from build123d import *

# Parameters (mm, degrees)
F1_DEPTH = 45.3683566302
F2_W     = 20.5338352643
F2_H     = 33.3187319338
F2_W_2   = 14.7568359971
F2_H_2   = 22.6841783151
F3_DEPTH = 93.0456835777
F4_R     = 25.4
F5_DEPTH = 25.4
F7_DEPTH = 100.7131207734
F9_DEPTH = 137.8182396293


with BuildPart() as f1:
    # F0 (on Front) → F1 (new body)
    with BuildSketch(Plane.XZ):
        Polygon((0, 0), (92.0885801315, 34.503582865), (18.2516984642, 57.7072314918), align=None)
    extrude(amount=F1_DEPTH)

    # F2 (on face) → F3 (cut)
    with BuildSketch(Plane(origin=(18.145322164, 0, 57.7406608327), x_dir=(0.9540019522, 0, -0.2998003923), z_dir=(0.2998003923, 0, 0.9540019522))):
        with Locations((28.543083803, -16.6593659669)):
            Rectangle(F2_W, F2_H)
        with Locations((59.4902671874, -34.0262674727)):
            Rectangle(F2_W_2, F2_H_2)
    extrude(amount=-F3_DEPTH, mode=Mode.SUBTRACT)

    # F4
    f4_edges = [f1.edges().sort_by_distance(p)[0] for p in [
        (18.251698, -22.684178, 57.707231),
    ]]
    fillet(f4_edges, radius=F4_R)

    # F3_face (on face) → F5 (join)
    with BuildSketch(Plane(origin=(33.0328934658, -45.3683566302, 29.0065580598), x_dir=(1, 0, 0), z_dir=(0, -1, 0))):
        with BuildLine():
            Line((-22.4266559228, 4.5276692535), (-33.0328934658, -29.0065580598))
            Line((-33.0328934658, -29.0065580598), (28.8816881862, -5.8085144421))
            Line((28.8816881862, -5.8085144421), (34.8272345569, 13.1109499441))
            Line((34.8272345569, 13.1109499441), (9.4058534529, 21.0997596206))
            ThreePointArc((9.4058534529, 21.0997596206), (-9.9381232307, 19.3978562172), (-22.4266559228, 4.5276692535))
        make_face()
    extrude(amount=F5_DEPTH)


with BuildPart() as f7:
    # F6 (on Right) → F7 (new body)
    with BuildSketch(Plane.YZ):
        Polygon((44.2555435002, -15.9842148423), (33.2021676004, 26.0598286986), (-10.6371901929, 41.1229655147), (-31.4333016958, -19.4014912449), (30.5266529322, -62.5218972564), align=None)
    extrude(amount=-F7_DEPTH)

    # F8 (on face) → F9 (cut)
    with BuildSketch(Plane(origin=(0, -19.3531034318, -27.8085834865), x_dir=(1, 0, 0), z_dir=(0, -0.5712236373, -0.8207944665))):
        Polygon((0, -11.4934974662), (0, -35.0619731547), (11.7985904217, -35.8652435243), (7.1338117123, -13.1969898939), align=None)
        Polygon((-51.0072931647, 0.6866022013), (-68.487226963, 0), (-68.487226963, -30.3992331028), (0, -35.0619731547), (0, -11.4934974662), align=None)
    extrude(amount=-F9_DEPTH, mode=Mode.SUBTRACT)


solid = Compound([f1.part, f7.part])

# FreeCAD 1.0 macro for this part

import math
import FreeCAD as App
import Part
import Sketcher
Q = App.Units.Quantity


def edges_at(feature, points):
    """Names of the edges that pass closest to the given points."""
    edges = feature.Shape.Edges
    near = lambda p: min(range(len(edges)), key=lambda i: edges[i].distToShape(Part.Vertex(*p))[0])
    return sorted({f"Edge{near(p) + 1}" for p in points})

doc = App.newDocument("Part")
body = doc.addObject("PartDesign::Body", "Body")

sketch1 = body.newObject("Sketcher::SketchObject", "Sketch")
sketch1.AttachmentSupport = (doc.getObject("XZ_Plane"), [""])
sketch1.MapMode = "FlatFace"
sketch1.addGeometry(Part.LineSegment(App.Vector(0, 0, 0), App.Vector(92.08858, 34.503583, 0)), False)
sketch1.addGeometry(Part.LineSegment(App.Vector(92.08858, 34.503583, 0), App.Vector(18.251698, 57.707231, 0)), False)
sketch1.addGeometry(Part.LineSegment(App.Vector(18.251698, 57.707231, 0), App.Vector(0, 0, 0)), False)
sketch1.addConstraint(Sketcher.Constraint("Coincident", 0, 2, 1, 1))
sketch1.addConstraint(Sketcher.Constraint("Coincident", 1, 2, 2, 1))
sketch1.addConstraint(Sketcher.Constraint("Coincident", 2, 2, 0, 1))
sketch1.addConstraint(Sketcher.Constraint("Coincident", 2, 2, -1, 1))
sketch1.addConstraint(Sketcher.Constraint("DistanceX", -1, 1, 1, 2, 18.251698))
sketch1.addConstraint(Sketcher.Constraint("Distance", 2, 60.524781))
sketch1.addConstraint(Sketcher.Constraint("DistanceX", -1, 1, 0, 2, 92.08858))
sketch1.addConstraint(Sketcher.Constraint("DistanceY", 0, 2, 1, 2, 23.203649))
pad1 = body.newObject("PartDesign::Pad", "Pad")
pad1.Profile = sketch1
pad1.Length = 45.368357

sketch2 = body.newObject("Sketcher::SketchObject", "Sketch001")
sketch2.Placement = App.Placement(App.Vector(18.145322, 0, 57.740661), App.Rotation(App.Vector(0.954001952, 0, -0.299800392), App.Vector(0, 0.999999999, 0), App.Vector(0.299800392, 0, 0.954001952), "ZXY"))
sketch2.addGeometry(Part.LineSegment(App.Vector(18.276166, 0, 0), App.Vector(18.276166, -33.318732, 0)), False)
sketch2.addGeometry(Part.LineSegment(App.Vector(18.276166, -33.318732, 0), App.Vector(38.810001, -33.318732, 0)), False)
sketch2.addGeometry(Part.LineSegment(App.Vector(38.810001, -33.318732, 0), App.Vector(38.810001, 0, 0)), False)
sketch2.addGeometry(Part.LineSegment(App.Vector(38.810001, 0, 0), App.Vector(18.276166, 0, 0)), False)
sketch2.addGeometry(Part.LineSegment(App.Vector(52.111849, -22.684178, 0), App.Vector(52.111849, -45.368357, 0)), False)
sketch2.addGeometry(Part.LineSegment(App.Vector(52.111849, -45.368357, 0), App.Vector(66.868685, -45.368357, 0)), False)
sketch2.addGeometry(Part.LineSegment(App.Vector(66.868685, -45.368357, 0), App.Vector(66.868685, -22.684178, 0)), False)
sketch2.addGeometry(Part.LineSegment(App.Vector(66.868685, -22.684178, 0), App.Vector(52.111849, -22.684178, 0)), False)
sketch2.addConstraint(Sketcher.Constraint("Coincident", 0, 2, 1, 1))
sketch2.addConstraint(Sketcher.Constraint("Coincident", 1, 2, 2, 1))
sketch2.addConstraint(Sketcher.Constraint("Coincident", 2, 2, 3, 1))
sketch2.addConstraint(Sketcher.Constraint("Coincident", 3, 2, 0, 1))
sketch2.addConstraint(Sketcher.Constraint("Coincident", 4, 2, 5, 1))
sketch2.addConstraint(Sketcher.Constraint("Coincident", 5, 2, 6, 1))
sketch2.addConstraint(Sketcher.Constraint("Coincident", 6, 2, 7, 1))
sketch2.addConstraint(Sketcher.Constraint("Coincident", 7, 2, 4, 1))
sketch2.addConstraint(Sketcher.Constraint("Vertical", 0))
sketch2.addConstraint(Sketcher.Constraint("Horizontal", 1))
sketch2.addConstraint(Sketcher.Constraint("Vertical", 2))
sketch2.addConstraint(Sketcher.Constraint("Horizontal", 3))
sketch2.addConstraint(Sketcher.Constraint("Vertical", 4))
sketch2.addConstraint(Sketcher.Constraint("Horizontal", 5))
sketch2.addConstraint(Sketcher.Constraint("Vertical", 6))
sketch2.addConstraint(Sketcher.Constraint("Horizontal", 7))
sketch2.addConstraint(Sketcher.Constraint("PointOnObject", 2, 2, -1))
sketch2.addConstraint(Sketcher.Constraint("DistanceY", 0, 2, 0, 1, 33.318732))
sketch2.addConstraint(Sketcher.Constraint("DistanceY", 4, 2, 4, 1, 22.684178))
sketch2.addConstraint(Sketcher.Constraint("DistanceX", -1, 1, 1, 2, 38.810001))
sketch2.addConstraint(Sketcher.Constraint("DistanceX", 1, 1, 1, 2, 20.533835))
sketch2.addConstraint(Sketcher.Constraint("DistanceX", 5, 1, 5, 2, 14.756836))
sketch2.addConstraint(Sketcher.Constraint("DistanceX", -1, 1, 4, 2, 52.111849))
sketch2.addConstraint(Sketcher.Constraint("DistanceY", 6, 2, -1, 1, 22.684178))
pocket1 = body.newObject("PartDesign::Pocket", "Pocket")
pocket1.Profile = sketch2
pocket1.Length = 93.045684
doc.recompute()

fillet = body.newObject("PartDesign::Fillet", "Fillet")
fillet.Base = (pocket1, edges_at(pocket1, [(18.252, -22.684, 57.707)]))
fillet.Radius = Q("1 in")

sketch3 = body.newObject("Sketcher::SketchObject", "Sketch002")
sketch3.AttachmentSupport = (doc.getObject("XZ_Plane"), [""])
sketch3.MapMode = "FlatFace"
sketch3.AttachmentOffset = App.Placement(App.Vector(0, 0, 45.368357), App.Rotation())
sketch3.addGeometry(Part.LineSegment(App.Vector(10.606238, 33.534227, 0), App.Vector(0, 0, 0)), False)
sketch3.addGeometry(Part.LineSegment(App.Vector(0, 0, 0), App.Vector(61.914582, 23.198044, 0)), False)
sketch3.addGeometry(Part.LineSegment(App.Vector(61.914582, 23.198044, 0), App.Vector(67.860128, 42.117508, 0)), False)
sketch3.addGeometry(Part.LineSegment(App.Vector(67.860128, 42.117508, 0), App.Vector(42.438747, 50.106318, 0)), False)
sketch3.addGeometry(Part.ArcOfCircle(Part.Circle(App.Vector(34.823817, 25.874668, 0), App.Vector(0, 0, 1), 25.4), math.radians(72.554385), math.radians(162.448829)), False)
sketch3.addConstraint(Sketcher.Constraint("Coincident", 0, 2, 1, 1))
sketch3.addConstraint(Sketcher.Constraint("Coincident", 1, 2, 2, 1))
sketch3.addConstraint(Sketcher.Constraint("Coincident", 2, 2, 3, 1))
sketch3.addConstraint(Sketcher.Constraint("Tangent", 3, 2, 4, 1))
sketch3.addConstraint(Sketcher.Constraint("Tangent", 4, 2, 0, 1))
sketch3.addConstraint(Sketcher.Constraint("Coincident", 0, 2, -1, 1))
sketch3.addConstraint(Sketcher.Constraint("Perpendicular", 2, 3))
sketch3.addConstraint(Sketcher.Constraint("Radius", 4, Q("1 in")))
sketch3.addConstraint(Sketcher.Constraint("Distance", 1, 66.117809))
sketch3.addConstraint(Sketcher.Constraint("DistanceY", -1, 1, 4, 3, 25.874668))
sketch3.addConstraint(Sketcher.Constraint("DistanceX", -1, 1, 1, 2, 61.914582))
sketch3.addConstraint(Sketcher.Constraint("DistanceX", -1, 1, 2, 2, 67.860128))
sketch3.addConstraint(Sketcher.Constraint("DistanceY", -1, 1, 2, 2, 42.117508))
pad2 = body.newObject("PartDesign::Pad", "Pad001")
pad2.Profile = sketch3
pad2.Length = Q("1 in")
body2 = doc.addObject("PartDesign::Body", "Body001")

sketch4 = body2.newObject("Sketcher::SketchObject", "Sketch003")
sketch4.AttachmentSupport = (doc.getObject("YZ_Plane001"), [""])
sketch4.MapMode = "FlatFace"
sketch4.addGeometry(Part.LineSegment(App.Vector(44.255544, -15.984215, 0), App.Vector(33.202168, 26.059829, 0)), False)
sketch4.addGeometry(Part.LineSegment(App.Vector(33.202168, 26.059829, 0), App.Vector(-10.63719, 41.122966, 0)), False)
sketch4.addGeometry(Part.LineSegment(App.Vector(-10.63719, 41.122966, 0), App.Vector(-31.433302, -19.401491, 0)), False)
sketch4.addGeometry(Part.LineSegment(App.Vector(-31.433302, -19.401491, 0), App.Vector(30.526653, -62.521897, 0)), False)
sketch4.addGeometry(Part.LineSegment(App.Vector(30.526653, -62.521897, 0), App.Vector(44.255544, -15.984215, 0)), False)
sketch4.addConstraint(Sketcher.Constraint("Coincident", 0, 2, 1, 1))
sketch4.addConstraint(Sketcher.Constraint("Coincident", 1, 2, 2, 1))
sketch4.addConstraint(Sketcher.Constraint("Coincident", 2, 2, 3, 1))
sketch4.addConstraint(Sketcher.Constraint("Coincident", 3, 2, 4, 1))
sketch4.addConstraint(Sketcher.Constraint("Coincident", 4, 2, 0, 1))
sketch4.addConstraint(Sketcher.Constraint("Perpendicular", 1, 2))
sketch4.addConstraint(Sketcher.Constraint("DistanceX", 2, 2, -1, 1, 31.433302))
sketch4.addConstraint(Sketcher.Constraint("DistanceY", -1, 1, 0, 2, 26.059829))
sketch4.addConstraint(Sketcher.Constraint("DistanceX", 1, 2, -1, 1, 10.63719))
sketch4.addConstraint(Sketcher.Constraint("DistanceY", 2, 2, -1, 1, 19.401491))
sketch4.addConstraint(Sketcher.Constraint("DistanceX", 2, 2, 0, 2, 64.635469))
sketch4.addConstraint(Sketcher.Constraint("DistanceX", 3, 2, 4, 2, 13.728891))
sketch4.addConstraint(Sketcher.Constraint("DistanceY", 4, 2, 1, 2, 57.10718))
sketch4.addConstraint(Sketcher.Constraint("Distance", 0, 43.472735))
sketch4.addConstraint(Sketcher.Constraint("Distance", 3, 75.487783))
pad3 = body2.newObject("PartDesign::Pad", "Pad002")
pad3.Profile = sketch4
pad3.Length = 100.713121
pad3.Reversed = True

sketch5 = body2.newObject("Sketcher::SketchObject", "Sketch004")
sketch5.Placement = App.Placement(App.Vector(0, -19.353103, -27.808583), App.Rotation(App.Vector(1, 0, 0), App.Vector(0, -0.820794466, 0.571223637), App.Vector(0, -0.571223637, -0.820794466), "ZXY"))
sketch5.addGeometry(Part.LineSegment(App.Vector(11.79859, -35.865243, 0), App.Vector(7.133812, -13.19699, 0)), False)
sketch5.addGeometry(Part.LineSegment(App.Vector(7.133812, -13.19699, 0), App.Vector(0, -11.493497, 0)), False)
sketch5.addGeometry(Part.LineSegment(App.Vector(0, -11.493497, 0), App.Vector(-51.007293, 0.686602, 0)), False)
sketch5.addGeometry(Part.LineSegment(App.Vector(-51.007293, 0.686602, 0), App.Vector(-68.487227, 0, 0)), False)
sketch5.addGeometry(Part.LineSegment(App.Vector(-68.487227, 0, 0), App.Vector(-68.487227, -30.399233, 0)), False)
sketch5.addGeometry(Part.LineSegment(App.Vector(-68.487227, -30.399233, 0), App.Vector(11.79859, -35.865243, 0)), False)
sketch5.addConstraint(Sketcher.Constraint("Coincident", 0, 2, 1, 1))
sketch5.addConstraint(Sketcher.Constraint("Coincident", 1, 2, 2, 1))
sketch5.addConstraint(Sketcher.Constraint("Coincident", 2, 2, 3, 1))
sketch5.addConstraint(Sketcher.Constraint("Coincident", 3, 2, 4, 1))
sketch5.addConstraint(Sketcher.Constraint("Coincident", 4, 2, 5, 1))
sketch5.addConstraint(Sketcher.Constraint("Coincident", 5, 2, 0, 1))
sketch5.addConstraint(Sketcher.Constraint("Vertical", 4))
sketch5.addConstraint(Sketcher.Constraint("PointOnObject", 1, 2, -2))
sketch5.addConstraint(Sketcher.Constraint("PointOnObject", 3, 2, -1))
sketch5.addConstraint(Sketcher.Constraint("Parallel", 1, 2))
sketch5.addConstraint(Sketcher.Constraint("DistanceY", 1, 2, -1, 1, Q("0.4524999 in")))
sketch5.addConstraint(Sketcher.Constraint("DistanceY", 1, 2, 2, 2, 12.1801))
sketch5.addConstraint(Sketcher.Constraint("Distance", 1, 7.334382))
sketch5.addConstraint(Sketcher.Constraint("Distance", 5, 80.47167))
sketch5.addConstraint(Sketcher.Constraint("DistanceY", 4, 2, 4, 1, 30.399233))
sketch5.addConstraint(Sketcher.Constraint("DistanceX", -1, 1, 0, 2, 7.133812))
sketch5.addConstraint(Sketcher.Constraint("DistanceX", -1, 1, 5, 2, 11.79859))
sketch5.addConstraint(Sketcher.Constraint("DistanceX", 3, 2, 0, 2, 75.621039))
pocket2 = body2.newObject("PartDesign::Pocket", "Pocket001")
pocket2.Profile = sketch5
pocket2.Length = 137.81824

doc.recompute()
